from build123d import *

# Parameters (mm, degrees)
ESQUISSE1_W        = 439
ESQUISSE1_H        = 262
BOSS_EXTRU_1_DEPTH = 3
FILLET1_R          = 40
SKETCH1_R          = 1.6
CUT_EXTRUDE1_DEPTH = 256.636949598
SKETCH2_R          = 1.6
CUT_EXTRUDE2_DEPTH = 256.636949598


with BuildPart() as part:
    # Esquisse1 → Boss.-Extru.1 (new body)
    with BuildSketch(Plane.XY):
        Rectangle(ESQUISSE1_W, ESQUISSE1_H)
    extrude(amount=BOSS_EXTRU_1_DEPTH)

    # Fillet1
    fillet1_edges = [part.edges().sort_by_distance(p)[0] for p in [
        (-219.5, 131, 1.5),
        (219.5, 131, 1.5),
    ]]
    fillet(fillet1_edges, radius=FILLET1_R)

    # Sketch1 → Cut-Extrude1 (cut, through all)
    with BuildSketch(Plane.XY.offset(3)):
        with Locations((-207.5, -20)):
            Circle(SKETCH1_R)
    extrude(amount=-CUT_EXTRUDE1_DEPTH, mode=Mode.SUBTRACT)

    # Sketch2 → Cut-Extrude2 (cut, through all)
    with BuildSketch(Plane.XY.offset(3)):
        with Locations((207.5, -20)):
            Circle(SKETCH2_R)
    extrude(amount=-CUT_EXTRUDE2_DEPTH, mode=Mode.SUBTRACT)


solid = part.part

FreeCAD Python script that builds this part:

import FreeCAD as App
import Part
import Sketcher

V = App.Vector
Q = App.Units.Quantity


def edges_at(feature, points):
    """Names of the edges that pass closest to the given points."""
    edges = feature.Shape.Edges
    near = lambda p: min(range(len(edges)), key=lambda i: edges[i].distToShape(Part.Vertex(*p))[0])
    return sorted({f"Edge{near(p) + 1}" for p in points})


def add_polygon(sketch, points):
    """Adds a closed chain of lines whose ends are joined by coincident constraints."""
    first, n = sketch.GeometryCount, len(points)
    for a, b in zip(points, points[1:] + points[:1]):
        sketch.addGeometry(Part.LineSegment(App.Vector(*a, 0), App.Vector(*b, 0)), False)
    for i in range(n):
        sketch.addConstraint(Sketcher.Constraint("Coincident", first + i, 2, first + (i + 1) % n, 1))

doc = App.newDocument("Part")
params = doc.addObject("Spreadsheet::Sheet", "Params")
for row, (alias, value) in enumerate([
    ("sketch1_width", "439 mm"),
    ("sketch1_height", "262 mm"),
    ("pad1_length", "3 mm"),
    ("fillet_radius", "40 mm"),
    ("sketch2_diameter", "3.2 mm"),
    ("sketch3_diameter", "3.2 mm"),
], start=1):
    params.set(f"A{row}", alias)
    params.set(f"B{row}", "=" + value)
    params.setAlias(f"B{row}", alias)

body = doc.addObject("PartDesign::Body", "Body")

# Sketch on XY plane
sketch1 = doc.addObject("Sketcher::SketchObject", "Sketch")
body.addObject(sketch1)
sketch1.AttachmentSupport = (doc.XY_Plane, [""])
sketch1.MapMode = "FlatFace"
add_polygon(sketch1, [(-219.5, 131), (-219.5, -131), (219.5, -131), (219.5, 131)])  # lines 0-3
sketch1.addConstraint([
    Sketcher.Constraint("Vertical", 0),
    Sketcher.Constraint("Horizontal", 1),
    Sketcher.Constraint("Vertical", 2),
    Sketcher.Constraint("Horizontal", 3),
    Sketcher.Constraint("Symmetric", 0, 2, 2, 2, -1, 1),
    Sketcher.Constraint("DistanceX", 1, 1, 1, 2, Q("439 mm")),
    Sketcher.Constraint("DistanceY", 0, 2, 0, 1, Q("262 mm")),
])
sketch1.setExpression("Constraints[9]", "Params.sketch1_width")
sketch1.setExpression("Constraints[10]", "Params.sketch1_height")
pad1 = doc.addObject("PartDesign::Pad", "Pad")
body.addObject(pad1)
pad1.Profile = sketch1
pad1.setExpression("Length", "Params.pad1_length")
doc.recompute()

fillet = doc.addObject("PartDesign::Fillet", "Fillet")
body.addObject(fillet)
fillet.Base = (pad1, edges_at(pad1, [(-219.5, 131, 1.5), (219.5, 131, 1.5)]))
fillet.setExpression("Radius", "Params.fillet_radius")

# Sketch on XY plane
sketch2 = doc.addObject("Sketcher::SketchObject", "Sketch001")
body.addObject(sketch2)
sketch2.AttachmentSupport = (doc.XY_Plane, [""])
sketch2.MapMode = "FlatFace"
sketch2.AttachmentOffset = App.Placement(V(0, 0, 3), App.Rotation())
sketch2.addGeometry(Part.Circle(V(-207.5, -20, 0), V(0, 0, 1), 1.6), False)
sketch2.addConstraint([
    Sketcher.Constraint("Diameter", 0, Q("3.2 mm")),
    Sketcher.Constraint("DistanceY", 0, 3, -1, 1, Q("20 mm")),
    Sketcher.Constraint("DistanceX", 0, 3, -1, 1, Q("207.5 mm")),
])
sketch2.setExpression("Constraints[0]", "Params.sketch2_diameter")
pocket1 = doc.addObject("PartDesign::Pocket", "Pocket")
body.addObject(pocket1)
pocket1.Profile = sketch2
pocket1.Type = "ThroughAll"

# Sketch on XY plane
sketch3 = doc.addObject("Sketcher::SketchObject", "Sketch002")
body.addObject(sketch3)
sketch3.AttachmentSupport = (doc.XY_Plane, [""])
sketch3.MapMode = "FlatFace"
sketch3.AttachmentOffset = App.Placement(V(0, 0, 3), App.Rotation())
sketch3.addGeometry(Part.Circle(V(207.5, -20, 0), V(0, 0, 1), 1.6), False)
sketch3.addConstraint([
    Sketcher.Constraint("Diameter", 0, Q("3.2 mm")),
    Sketcher.Constraint("DistanceY", 0, 3, -1, 1, Q("20 mm")),
    Sketcher.Constraint("DistanceX", -1, 1, 0, 3, Q("207.5 mm")),
])
sketch3.setExpression("Constraints[0]", "Params.sketch3_diameter")
pocket2 = doc.addObject("PartDesign::Pocket", "Pocket001")
body.addObject(pocket2)
pocket2.Profile = sketch3
pocket2.Type = "ThroughAll"

doc.recompute()
